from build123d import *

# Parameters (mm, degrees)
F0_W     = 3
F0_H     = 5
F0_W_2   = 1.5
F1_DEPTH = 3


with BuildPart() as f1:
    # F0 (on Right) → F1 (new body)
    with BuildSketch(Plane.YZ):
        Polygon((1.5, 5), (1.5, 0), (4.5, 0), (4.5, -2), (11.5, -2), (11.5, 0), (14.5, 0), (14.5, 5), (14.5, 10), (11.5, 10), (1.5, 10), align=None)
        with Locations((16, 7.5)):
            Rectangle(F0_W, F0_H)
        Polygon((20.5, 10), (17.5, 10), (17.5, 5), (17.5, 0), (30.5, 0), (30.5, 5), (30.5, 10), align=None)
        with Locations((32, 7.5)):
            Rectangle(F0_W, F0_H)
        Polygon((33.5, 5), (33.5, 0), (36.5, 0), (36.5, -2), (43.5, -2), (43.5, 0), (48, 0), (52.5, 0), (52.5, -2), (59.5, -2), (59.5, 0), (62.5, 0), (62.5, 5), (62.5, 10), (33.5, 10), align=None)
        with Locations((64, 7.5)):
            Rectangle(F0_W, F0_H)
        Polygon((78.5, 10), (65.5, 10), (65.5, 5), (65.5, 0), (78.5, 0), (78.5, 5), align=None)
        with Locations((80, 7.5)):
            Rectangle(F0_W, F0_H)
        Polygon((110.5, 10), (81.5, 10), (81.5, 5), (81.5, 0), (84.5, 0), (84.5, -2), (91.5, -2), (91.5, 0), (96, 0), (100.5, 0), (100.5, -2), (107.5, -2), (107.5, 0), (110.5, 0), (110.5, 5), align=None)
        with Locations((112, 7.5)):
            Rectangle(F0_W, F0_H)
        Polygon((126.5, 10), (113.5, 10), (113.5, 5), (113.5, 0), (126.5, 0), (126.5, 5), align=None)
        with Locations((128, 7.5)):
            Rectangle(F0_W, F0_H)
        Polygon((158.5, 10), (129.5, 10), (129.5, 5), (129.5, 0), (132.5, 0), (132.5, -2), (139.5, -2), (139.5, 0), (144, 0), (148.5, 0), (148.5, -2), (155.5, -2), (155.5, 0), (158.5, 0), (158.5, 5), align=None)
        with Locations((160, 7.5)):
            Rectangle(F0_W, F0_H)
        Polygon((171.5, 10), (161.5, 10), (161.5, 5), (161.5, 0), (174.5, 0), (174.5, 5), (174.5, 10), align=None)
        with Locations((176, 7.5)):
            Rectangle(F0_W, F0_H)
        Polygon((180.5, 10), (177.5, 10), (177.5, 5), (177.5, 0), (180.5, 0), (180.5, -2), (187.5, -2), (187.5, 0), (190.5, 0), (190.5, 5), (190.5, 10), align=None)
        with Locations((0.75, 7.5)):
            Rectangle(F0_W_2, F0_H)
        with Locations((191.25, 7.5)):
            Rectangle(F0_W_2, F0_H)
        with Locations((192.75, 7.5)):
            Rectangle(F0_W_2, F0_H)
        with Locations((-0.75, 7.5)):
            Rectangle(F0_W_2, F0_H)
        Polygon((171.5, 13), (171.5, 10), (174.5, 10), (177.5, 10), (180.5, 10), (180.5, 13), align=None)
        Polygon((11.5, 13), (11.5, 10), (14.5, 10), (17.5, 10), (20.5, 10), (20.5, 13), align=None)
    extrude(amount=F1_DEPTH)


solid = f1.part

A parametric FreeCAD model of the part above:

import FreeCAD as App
import Part
import Sketcher
from FreeCAD import Vector

doc = App.newDocument("Part")
body = doc.addObject("PartDesign::Body", "Body")

# Sketch on YZ plane
sketch1 = body.newObject("Sketcher::SketchObject", "Sketch")
sketch1.AttachmentSupport = (doc.getObject("YZ_Plane"), [""])
sketch1.MapMode = "FlatFace"
sketch1.addGeometry(Part.LineSegment(Vector(-1.5, 5, 0), Vector(1.5, 5, 0)), False)
sketch1.addGeometry(Part.LineSegment(Vector(1.5, 5, 0), Vector(1.5, 0, 0)), False)
sketch1.addGeometry(Part.LineSegment(Vector(1.5, 0, 0), Vector(4.5, 0, 0)), False)
sketch1.addGeometry(Part.LineSegment(Vector(4.5, 0, 0), Vector(4.5, -2, 0)), False)
sketch1.addGeometry(Part.LineSegment(Vector(4.5, -2, 0), Vector(11.5, -2, 0)), False)
sketch1.addGeometry(Part.LineSegment(Vector(11.5, -2, 0), Vector(11.5, 0, 0)), False)
sketch1.addGeometry(Part.LineSegment(Vector(11.5, 0, 0), Vector(14.5, 0, 0)), False)
sketch1.addGeometry(Part.LineSegment(Vector(14.5, 0, 0), Vector(14.5, 5, 0)), False)
sketch1.addGeometry(Part.LineSegment(Vector(14.5, 5, 0), Vector(17.5, 5, 0)), False)
sketch1.addGeometry(Part.LineSegment(Vector(17.5, 5, 0), Vector(17.5, 0, 0)), False)
sketch1.addGeometry(Part.LineSegment(Vector(17.5, 0, 0), Vector(30.5, 0, 0)), False)
sketch1.addGeometry(Part.LineSegment(Vector(30.5, 0, 0), Vector(30.5, 5, 0)), False)
sketch1.addGeometry(Part.LineSegment(Vector(30.5, 5, 0), Vector(33.5, 5, 0)), False)
sketch1.addGeometry(Part.LineSegment(Vector(33.5, 5, 0), Vector(33.5, 0, 0)), False)
sketch1.addGeometry(Part.LineSegment(Vector(33.5, 0, 0), Vector(36.5, 0, 0)), False)
sketch1.addGeometry(Part.LineSegment(Vector(36.5, 0, 0), Vector(36.5, -2, 0)), False)
sketch1.addGeometry(Part.LineSegment(Vector(36.5, -2, 0), Vector(43.5, -2, 0)), False)
sketch1.addGeometry(Part.LineSegment(Vector(43.5, -2, 0), Vector(43.5, 0, 0)), False)
sketch1.addGeometry(Part.LineSegment(Vector(43.5, 0, 0), Vector(52.5, 0, 0)), False)
sketch1.addGeometry(Part.LineSegment(Vector(52.5, 0, 0), Vector(52.5, -2, 0)), False)
sketch1.addGeometry(Part.LineSegment(Vector(52.5, -2, 0), Vector(59.5, -2, 0)), False)
sketch1.addGeometry(Part.LineSegment(Vector(59.5, -2, 0), Vector(59.5, 0, 0)), False)
sketch1.addGeometry(Part.LineSegment(Vector(59.5, 0, 0), Vector(62.5, 0, 0)), False)
sketch1.addGeometry(Part.LineSegment(Vector(62.5, 0, 0), Vector(62.5, 5, 0)), False)
sketch1.addGeometry(Part.LineSegment(Vector(62.5, 5, 0), Vector(65.5, 5, 0)), False)
sketch1.addGeometry(Part.LineSegment(Vector(65.5, 5, 0), Vector(65.5, 0, 0)), False)
sketch1.addGeometry(Part.LineSegment(Vector(65.5, 0, 0), Vector(78.5, 0, 0)), False)
sketch1.addGeometry(Part.LineSegment(Vector(78.5, 0, 0), Vector(78.5, 5, 0)), False)
sketch1.addGeometry(Part.LineSegment(Vector(78.5, 5, 0), Vector(81.5, 5, 0)), False)
sketch1.addGeometry(Part.LineSegment(Vector(81.5, 5, 0), Vector(81.5, 0, 0)), False)
sketch1.addGeometry(Part.LineSegment(Vector(81.5, 0, 0), Vector(84.5, 0, 0)), False)
sketch1.addGeometry(Part.LineSegment(Vector(84.5, 0, 0), Vector(84.5, -2, 0)), False)
sketch1.addGeometry(Part.LineSegment(Vector(84.5, -2, 0), Vector(91.5, -2, 0)), False)
sketch1.addGeometry(Part.LineSegment(Vector(91.5, -2, 0), Vector(91.5, 0, 0)), False)
sketch1.addGeometry(Part.LineSegment(Vector(91.5, 0, 0), Vector(100.5, 0, 0)), False)
sketch1.addGeometry(Part.LineSegment(Vector(100.5, 0, 0), Vector(100.5, -2, 0)), False)
sketch1.addGeometry(Part.LineSegment(Vector(100.5, -2, 0), Vector(107.5, -2, 0)), False)
sketch1.addGeometry(Part.LineSegment(Vector(107.5, -2, 0), Vector(107.5, 0, 0)), False)
sketch1.addGeometry(Part.LineSegment(Vector(107.5, 0, 0), Vector(110.5, 0, 0)), False)
sketch1.addGeometry(Part.LineSegment(Vector(110.5, 0, 0), Vector(110.5, 5, 0)), False)
sketch1.addGeometry(Part.LineSegment(Vector(110.5, 5, 0), Vector(113.5, 5, 0)), False)
sketch1.addGeometry(Part.LineSegment(Vector(113.5, 5, 0), Vector(113.5, 0, 0)), False)
sketch1.addGeometry(Part.LineSegment(Vector(113.5, 0, 0), Vector(126.5, 0, 0)), False)
sketch1.addGeometry(Part.LineSegment(Vector(126.5, 0, 0), Vector(126.5, 5, 0)), False)
sketch1.addGeometry(Part.LineSegment(Vector(126.5, 5, 0), Vector(129.5, 5, 0)), False)
sketch1.addGeometry(Part.LineSegment(Vector(129.5, 5, 0), Vector(129.5, 0, 0)), False)
sketch1.addGeometry(Part.LineSegment(Vector(129.5, 0, 0), Vector(132.5, 0, 0)), False)
sketch1.addGeometry(Part.LineSegment(Vector(132.5, 0, 0), Vector(132.5, -2, 0)), False)
sketch1.addGeometry(Part.LineSegment(Vector(132.5, -2, 0), Vector(139.5, -2, 0)), False)
sketch1.addGeometry(Part.LineSegment(Vector(139.5, -2, 0), Vector(139.5, 0, 0)), False)
sketch1.addGeometry(Part.LineSegment(Vector(139.5, 0, 0), Vector(148.5, 0, 0)), False)
sketch1.addGeometry(Part.LineSegment(Vector(148.5, 0, 0), Vector(148.5, -2, 0)), False)
sketch1.addGeometry(Part.LineSegment(Vector(148.5, -2, 0), Vector(155.5, -2, 0)), False)
sketch1.addGeometry(Part.LineSegment(Vector(155.5, -2, 0), Vector(155.5, 0, 0)), False)
sketch1.addGeometry(Part.LineSegment(Vector(155.5, 0, 0), Vector(158.5, 0, 0)), False)
sketch1.addGeometry(Part.LineSegment(Vector(158.5, 0, 0), Vector(158.5, 5, 0)), False)
sketch1.addGeometry(Part.LineSegment(Vector(158.5, 5, 0), Vector(161.5, 5, 0)), False)
sketch1.addGeometry(Part.LineSegment(Vector(161.5, 5, 0), Vector(161.5, 0, 0)), False)
sketch1.addGeometry(Part.LineSegment(Vector(161.5, 0, 0), Vector(174.5, 0, 0)), False)
sketch1.addGeometry(Part.LineSegment(Vector(174.5, 0, 0), Vector(174.5, 5, 0)), False)
sketch1.addGeometry(Part.LineSegment(Vector(174.5, 5, 0), Vector(177.5, 5, 0)), False)
sketch1.addGeometry(Part.LineSegment(Vector(177.5, 5, 0), Vector(177.5, 0, 0)), False)
sketch1.addGeometry(Part.LineSegment(Vector(177.5, 0, 0), Vector(180.5, 0, 0)), False)
sketch1.addGeometry(Part.LineSegment(Vector(180.5, 0, 0), Vector(180.5, -2, 0)), False)
sketch1.addGeometry(Part.LineSegment(Vector(180.5, -2, 0), Vector(187.5, -2, 0)), False)
sketch1.addGeometry(Part.LineSegment(Vector(187.5, -2, 0), Vector(187.5, 0, 0)), False)
sketch1.addGeometry(Part.LineSegment(Vector(187.5, 0, 0), Vector(190.5, 0, 0)), False)
sketch1.addGeometry(Part.LineSegment(Vector(190.5, 0, 0), Vector(190.5, 5, 0)), False)
sketch1.addGeometry(Part.LineSegment(Vector(190.5, 5, 0), Vector(193.5, 5, 0)), False)
sketch1.addGeometry(Part.LineSegment(Vector(193.5, 5, 0), Vector(193.5, 10, 0)), False)
sketch1.addGeometry(Part.LineSegment(Vector(193.5, 10, 0), Vector(180.5, 10, 0)), False)
sketch1.addGeometry(Part.LineSegment(Vector(180.5, 10, 0), Vector(180.5, 13, 0)), False)
sketch1.addGeometry(Part.LineSegment(Vector(180.5, 13, 0), Vector(171.5, 13, 0)), False)
sketch1.addGeometry(Part.LineSegment(Vector(171.5, 13, 0), Vector(171.5, 10, 0)), False)
sketch1.addGeometry(Part.LineSegment(Vector(171.5, 10, 0), Vector(20.5, 10, 0)), False)
sketch1.addGeometry(Part.LineSegment(Vector(20.5, 10, 0), Vector(20.5, 13, 0)), False)
sketch1.addGeometry(Part.LineSegment(Vector(20.5, 13, 0), Vector(11.5, 13, 0)), False)
sketch1.addGeometry(Part.LineSegment(Vector(11.5, 13, 0), Vector(11.5, 10, 0)), False)
sketch1.addGeometry(Part.LineSegment(Vector(11.5, 10, 0), Vector(-1.5, 10, 0)), False)
sketch1.addGeometry(Part.LineSegment(Vector(-1.5, 10, 0), Vector(-1.5, 5, 0)), False)
sketch1.addConstraint(Sketcher.Constraint("Coincident", 0, 2, 1, 1))
sketch1.addConstraint(Sketcher.Constraint("Coincident", 1, 2, 2, 1))
sketch1.addConstraint(Sketcher.Constraint("Coincident", 2, 2, 3, 1))
sketch1.addConstraint(Sketcher.Constraint("Coincident", 3, 2, 4, 1))
sketch1.addConstraint(Sketcher.Constraint("Coincident", 4, 2, 5, 1))
sketch1.addConstraint(Sketcher.Constraint("Coincident", 5, 2, 6, 1))
sketch1.addConstraint(Sketcher.Constraint("Coincident", 6, 2, 7, 1))
sketch1.addConstraint(Sketcher.Constraint("Coincident", 7, 2, 8, 1))
sketch1.addConstraint(Sketcher.Constraint("Coincident", 8, 2, 9, 1))
sketch1.addConstraint(Sketcher.Constraint("Coincident", 9, 2, 10, 1))
sketch1.addConstraint(Sketcher.Constraint("Coincident", 10, 2, 11, 1))
sketch1.addConstraint(Sketcher.Constraint("Coincident", 11, 2, 12, 1))
sketch1.addConstraint(Sketcher.Constraint("Coincident", 12, 2, 13, 1))
sketch1.addConstraint(Sketcher.Constraint("Coincident", 13, 2, 14, 1))
sketch1.addConstraint(Sketcher.Constraint("Coincident", 14, 2, 15, 1))
sketch1.addConstraint(Sketcher.Constraint("Coincident", 15, 2, 16, 1))
sketch1.addConstraint(Sketcher.Constraint("Coincident", 16, 2, 17, 1))
sketch1.addConstraint(Sketcher.Constraint("Coincident", 17, 2, 18, 1))
sketch1.addConstraint(Sketcher.Constraint("Coincident", 18, 2, 19, 1))
sketch1.addConstraint(Sketcher.Constraint("Coincident", 19, 2, 20, 1))
sketch1.addConstraint(Sketcher.Constraint("Coincident", 20, 2, 21, 1))
sketch1.addConstraint(Sketcher.Constraint("Coincident", 21, 2, 22, 1))
sketch1.addConstraint(Sketcher.Constraint("Coincident", 22, 2, 23, 1))
sketch1.addConstraint(Sketcher.Constraint("Coincident", 23, 2, 24, 1))
sketch1.addConstraint(Sketcher.Constraint("Coincident", 24, 2, 25, 1))
sketch1.addConstraint(Sketcher.Constraint("Coincident", 25, 2, 26, 1))
sketch1.addConstraint(Sketcher.Constraint("Coincident", 26, 2, 27, 1))
sketch1.addConstraint(Sketcher.Constraint("Coincident", 27, 2, 28, 1))
sketch1.addConstraint(Sketcher.Constraint("Coincident", 28, 2, 29, 1))
sketch1.addConstraint(Sketcher.Constraint("Coincident", 29, 2, 30, 1))
sketch1.addConstraint(Sketcher.Constraint("Coincident", 30, 2, 31, 1))
sketch1.addConstraint(Sketcher.Constraint("Coincident", 31, 2, 32, 1))
sketch1.addConstraint(Sketcher.Constraint("Coincident", 32, 2, 33, 1))
sketch1.addConstraint(Sketcher.Constraint("Coincident", 33, 2, 34, 1))
sketch1.addConstraint(Sketcher.Constraint("Coincident", 34, 2, 35, 1))
sketch1.addConstraint(Sketcher.Constraint("Coincident", 35, 2, 36, 1))
sketch1.addConstraint(Sketcher.Constraint("Coincident", 36, 2, 37, 1))
sketch1.addConstraint(Sketcher.Constraint("Coincident", 37, 2, 38, 1))
sketch1.addConstraint(Sketcher.Constraint("Coincident", 38, 2, 39, 1))
sketch1.addConstraint(Sketcher.Constraint("Coincident", 39, 2, 40, 1))
sketch1.addConstraint(Sketcher.Constraint("Coincident", 40, 2, 41, 1))
sketch1.addConstraint(Sketcher.Constraint("Coincident", 41, 2, 42, 1))
sketch1.addConstraint(Sketcher.Constraint("Coincident", 42, 2, 43, 1))
sketch1.addConstraint(Sketcher.Constraint("Coincident", 43, 2, 44, 1))
sketch1.addConstraint(Sketcher.Constraint("Coincident", 44, 2, 45, 1))
sketch1.addConstraint(Sketcher.Constraint("Coincident", 45, 2, 46, 1))
sketch1.addConstraint(Sketcher.Constraint("Coincident", 46, 2, 47, 1))
sketch1.addConstraint(Sketcher.Constraint("Coincident", 47, 2, 48, 1))
sketch1.addConstraint(Sketcher.Constraint("Coincident", 48, 2, 49, 1))
sketch1.addConstraint(Sketcher.Constraint("Coincident", 49, 2, 50, 1))
sketch1.addConstraint(Sketcher.Constraint("Coincident", 50, 2, 51, 1))
sketch1.addConstraint(Sketcher.Constraint("Coincident", 51, 2, 52, 1))
sketch1.addConstraint(Sketcher.Constraint("Coincident", 52, 2, 53, 1))
sketch1.addConstraint(Sketcher.Constraint("Coincident", 53, 2, 54, 1))
sketch1.addConstraint(Sketcher.Constraint("Coincident", 54, 2, 55, 1))
sketch1.addConstraint(Sketcher.Constraint("Coincident", 55, 2, 56, 1))
sketch1.addConstraint(Sketcher.Constraint("Coincident", 56, 2, 57, 1))
sketch1.addConstraint(Sketcher.Constraint("Coincident", 57, 2, 58, 1))
sketch1.addConstraint(Sketcher.Constraint("Coincident", 58, 2, 59, 1))
sketch1.addConstraint(Sketcher.Constraint("Coincident", 59, 2, 60, 1))
sketch1.addConstraint(Sketcher.Constraint("Coincident", 60, 2, 61, 1))
sketch1.addConstraint(Sketcher.Constraint("Coincident", 61, 2, 62, 1))
sketch1.addConstraint(Sketcher.Constraint("Coincident", 62, 2, 63, 1))
sketch1.addConstraint(Sketcher.Constraint("Coincident", 63, 2, 64, 1))
sketch1.addConstraint(Sketcher.Constraint("Coincident", 64, 2, 65, 1))
sketch1.addConstraint(Sketcher.Constraint("Coincident", 65, 2, 66, 1))
sketch1.addConstraint(Sketcher.Constraint("Coincident", 66, 2, 67, 1))
sketch1.addConstraint(Sketcher.Constraint("Coincident", 67, 2, 68, 1))
sketch1.addConstraint(Sketcher.Constraint("Coincident", 68, 2, 69, 1))
sketch1.addConstraint(Sketcher.Constraint("Coincident", 69, 2, 70, 1))
sketch1.addConstraint(Sketcher.Constraint("Coincident", 70, 2, 71, 1))
sketch1.addConstraint(Sketcher.Constraint("Coincident", 71, 2, 72, 1))
sketch1.addConstraint(Sketcher.Constraint("Coincident", 72, 2, 73, 1))
sketch1.addConstraint(Sketcher.Constraint("Coincident", 73, 2, 74, 1))
sketch1.addConstraint(Sketcher.Constraint("Coincident", 74, 2, 75, 1))
sketch1.addConstraint(Sketcher.Constraint("Coincident", 75, 2, 76, 1))
sketch1.addConstraint(Sketcher.Constraint("Coincident", 76, 2, 77, 1))
sketch1.addConstraint(Sketcher.Constraint("Coincident", 77, 2, 78, 1))
sketch1.addConstraint(Sketcher.Constraint("Coincident", 78, 2, 79, 1))
sketch1.addConstraint(Sketcher.Constraint("Coincident", 79, 2, 0, 1))
sketch1.addConstraint(Sketcher.Constraint("Horizontal", 0))
sketch1.addConstraint(Sketcher.Constraint("Vertical", 1))
sketch1.addConstraint(Sketcher.Constraint("Horizontal", 2))
sketch1.addConstraint(Sketcher.Constraint("Vertical", 3))
sketch1.addConstraint(Sketcher.Constraint("Horizontal", 4))
sketch1.addConstraint(Sketcher.Constraint("Vertical", 5))
sketch1.addConstraint(Sketcher.Constraint("Horizontal", 6))
sketch1.addConstraint(Sketcher.Constraint("Vertical", 7))
sketch1.addConstraint(Sketcher.Constraint("Horizontal", 8))
sketch1.addConstraint(Sketcher.Constraint("Vertical", 9))
sketch1.addConstraint(Sketcher.Constraint("Horizontal", 10))
sketch1.addConstraint(Sketcher.Constraint("Vertical", 11))
sketch1.addConstraint(Sketcher.Constraint("Horizontal", 12))
sketch1.addConstraint(Sketcher.Constraint("Vertical", 13))
sketch1.addConstraint(Sketcher.Constraint("Horizontal", 14))
sketch1.addConstraint(Sketcher.Constraint("Vertical", 15))
sketch1.addConstraint(Sketcher.Constraint("Horizontal", 16))
sketch1.addConstraint(Sketcher.Constraint("Vertical", 17))
sketch1.addConstraint(Sketcher.Constraint("Horizontal", 18))
sketch1.addConstraint(Sketcher.Constraint("Vertical", 19))
sketch1.addConstraint(Sketcher.Constraint("Horizontal", 20))
sketch1.addConstraint(Sketcher.Constraint("Vertical", 21))
sketch1.addConstraint(Sketcher.Constraint("Horizontal", 22))
sketch1.addConstraint(Sketcher.Constraint("Vertical", 23))
sketch1.addConstraint(Sketcher.Constraint("Horizontal", 24))
sketch1.addConstraint(Sketcher.Constraint("Vertical", 25))
sketch1.addConstraint(Sketcher.Constraint("Horizontal", 26))
sketch1.addConstraint(Sketcher.Constraint("Vertical", 27))
sketch1.addConstraint(Sketcher.Constraint("Horizontal", 28))
sketch1.addConstraint(Sketcher.Constraint("Vertical", 29))
sketch1.addConstraint(Sketcher.Constraint("Horizontal", 30))
sketch1.addConstraint(Sketcher.Constraint("Vertical", 31))
sketch1.addConstraint(Sketcher.Constraint("Horizontal", 32))
sketch1.addConstraint(Sketcher.Constraint("Vertical", 33))
sketch1.addConstraint(Sketcher.Constraint("Horizontal", 34))
sketch1.addConstraint(Sketcher.Constraint("Vertical", 35))
sketch1.addConstraint(Sketcher.Constraint("Horizontal", 36))
sketch1.addConstraint(Sketcher.Constraint("Vertical", 37))
sketch1.addConstraint(Sketcher.Constraint("Horizontal", 38))
sketch1.addConstraint(Sketcher.Constraint("Vertical", 39))
sketch1.addConstraint(Sketcher.Constraint("Horizontal", 40))
sketch1.addConstraint(Sketcher.Constraint("Vertical", 41))
sketch1.addConstraint(Sketcher.Constraint("Horizontal", 42))
sketch1.addConstraint(Sketcher.Constraint("Vertical", 43))
sketch1.addConstraint(Sketcher.Constraint("Horizontal", 44))
sketch1.addConstraint(Sketcher.Constraint("Vertical", 45))
sketch1.addConstraint(Sketcher.Constraint("Horizontal", 46))
sketch1.addConstraint(Sketcher.Constraint("Vertical", 47))
sketch1.addConstraint(Sketcher.Constraint("Horizontal", 48))
sketch1.addConstraint(Sketcher.Constraint("Vertical", 49))
sketch1.addConstraint(Sketcher.Constraint("Horizontal", 50))
sketch1.addConstraint(Sketcher.Constraint("Vertical", 51))
sketch1.addConstraint(Sketcher.Constraint("Horizontal", 52))
sketch1.addConstraint(Sketcher.Constraint("Vertical", 53))
sketch1.addConstraint(Sketcher.Constraint("Horizontal", 54))
sketch1.addConstraint(Sketcher.Constraint("Vertical", 55))
sketch1.addConstraint(Sketcher.Constraint("Horizontal", 56))
sketch1.addConstraint(Sketcher.Constraint("Vertical", 57))
sketch1.addConstraint(Sketcher.Constraint("Horizontal", 58))
sketch1.addConstraint(Sketcher.Constraint("Vertical", 59))
sketch1.addConstraint(Sketcher.Constraint("Horizontal", 60))
sketch1.addConstraint(Sketcher.Constraint("Vertical", 61))
sketch1.addConstraint(Sketcher.Constraint("Horizontal", 62))
sketch1.addConstraint(Sketcher.Constraint("Vertical", 63))
sketch1.addConstraint(Sketcher.Constraint("Horizontal", 64))
sketch1.addConstraint(Sketcher.Constraint("Vertical", 65))
sketch1.addConstraint(Sketcher.Constraint("Horizontal", 66))
sketch1.addConstraint(Sketcher.Constraint("Vertical", 67))
sketch1.addConstraint(Sketcher.Constraint("Horizontal", 68))
sketch1.addConstraint(Sketcher.Constraint("Vertical", 69))
sketch1.addConstraint(Sketcher.Constraint("Horizontal", 70))
sketch1.addConstraint(Sketcher.Constraint("Vertical", 71))
sketch1.addConstraint(Sketcher.Constraint("Horizontal", 72))
sketch1.addConstraint(Sketcher.Constraint("Vertical", 73))
sketch1.addConstraint(Sketcher.Constraint("Horizontal", 74))
sketch1.addConstraint(Sketcher.Constraint("Vertical", 75))
sketch1.addConstraint(Sketcher.Constraint("Horizontal", 76))
sketch1.addConstraint(Sketcher.Constraint("Vertical", 77))
sketch1.addConstraint(Sketcher.Constraint("Horizontal", 78))
sketch1.addConstraint(Sketcher.Constraint("Vertical", 79))
sketch1.addConstraint(Sketcher.Constraint("PointOnObject", 1, 2, -1))
sketch1.addConstraint(Sketcher.Constraint("PointOnObject", 5, 2, -1))
sketch1.addConstraint(Sketcher.Constraint("PointOnObject", 9, 2, -1))
sketch1.addConstraint(Sketcher.Constraint("PointOnObject", 13, 2, -1))
sketch1.addConstraint(Sketcher.Constraint("PointOnObject", 17, 2, -1))
sketch1.addConstraint(Sketcher.Constraint("PointOnObject", 21, 2, -1))
sketch1.addConstraint(Sketcher.Constraint("PointOnObject", 25, 2, -1))
sketch1.addConstraint(Sketcher.Constraint("PointOnObject", 29, 2, -1))
sketch1.addConstraint(Sketcher.Constraint("PointOnObject", 33, 2, -1))
sketch1.addConstraint(Sketcher.Constraint("PointOnObject", 37, 2, -1))
sketch1.addConstraint(Sketcher.Constraint("PointOnObject", 41, 2, -1))
sketch1.addConstraint(Sketcher.Constraint("PointOnObject", 45, 2, -1))
sketch1.addConstraint(Sketcher.Constraint("PointOnObject", 49, 2, -1))
sketch1.addConstraint(Sketcher.Constraint("PointOnObject", 53, 2, -1))
sketch1.addConstraint(Sketcher.Constraint("PointOnObject", 57, 2, -1))
sketch1.addConstraint(Sketcher.Constraint("PointOnObject", 61, 2, -1))
sketch1.addConstraint(Sketcher.Constraint("PointOnObject", 65, 2, -1))
sketch1.addConstraint(Sketcher.Constraint("Horizontal", 0, 2, 7, 2))
sketch1.addConstraint(Sketcher.Constraint("Horizontal", 8, 2, 11, 2))
sketch1.addConstraint(Sketcher.Constraint("Horizontal", 4, 2, 15, 2))
sketch1.addConstraint(Sketcher.Constraint("Horizontal", 16, 2, 19, 2))
sketch1.addConstraint(Sketcher.Constraint("Horizontal", 12, 2, 23, 2))
sketch1.addConstraint(Sketcher.Constraint("Horizontal", 24, 2, 27, 2))
sketch1.addConstraint(Sketcher.Constraint("Horizontal", 20, 2, 31, 2))
sketch1.addConstraint(Sketcher.Constraint("Horizontal", 32, 2, 35, 2))
sketch1.addConstraint(Sketcher.Constraint("Horizontal", 28, 2, 39, 2))
sketch1.addConstraint(Sketcher.Constraint("Horizontal", 40, 2, 43, 2))
sketch1.addConstraint(Sketcher.Constraint("Horizontal", 36, 2, 47, 2))
sketch1.addConstraint(Sketcher.Constraint("Horizontal", 48, 2, 51, 2))
sketch1.addConstraint(Sketcher.Constraint("Horizontal", 44, 2, 55, 2))
sketch1.addConstraint(Sketcher.Constraint("Horizontal", 56, 2, 59, 2))
sketch1.addConstraint(Sketcher.Constraint("Horizontal", 52, 2, 63, 2))
sketch1.addConstraint(Sketcher.Constraint("Horizontal", 60, 2, 67, 2))
sketch1.addConstraint(Sketcher.Constraint("Horizontal", 70, 2, 73, 2))
sketch1.addConstraint(Sketcher.Constraint("Horizontal", 72, 2, 75, 2))
sketch1.addConstraint(Sketcher.Constraint("Horizontal", 74, 2, 77, 2))
sketch1.addConstraint(Sketcher.Constraint("Vertical", 63, 2, 70, 2))
sketch1.addConstraint(Sketcher.Constraint("Vertical", 5, 2, 76, 2))
sketch1.addConstraint(Sketcher.Constraint("Equal", 0, 2))
sketch1.addConstraint(Sketcher.Constraint("Equal", 2, 6))
sketch1.addConstraint(Sketcher.Constraint("Equal", 6, 8))
sketch1.addConstraint(Sketcher.Constraint("Equal", 8, 12))
sketch1.addConstraint(Sketcher.Constraint("Equal", 12, 14))
sketch1.addConstraint(Sketcher.Constraint("Equal", 4, 16))
sketch1.addConstraint(Sketcher.Constraint("Equal", 16, 20))
sketch1.addConstraint(Sketcher.Constraint("Equal", 14, 22))
sketch1.addConstraint(Sketcher.Constraint("Equal", 22, 24))
sketch1.addConstraint(Sketcher.Constraint("Equal", 10, 26))
sketch1.addConstraint(Sketcher.Constraint("Equal", 24, 28))
sketch1.addConstraint(Sketcher.Constraint("Equal", 28, 30))
sketch1.addConstraint(Sketcher.Constraint("Equal", 20, 32))
sketch1.addConstraint(Sketcher.Constraint("Equal", 18, 34))
sketch1.addConstraint(Sketcher.Constraint("Equal", 32, 36))
sketch1.addConstraint(Sketcher.Constraint("Equal", 30, 38))
sketch1.addConstraint(Sketcher.Constraint("Equal", 38, 40))
sketch1.addConstraint(Sketcher.Constraint("Equal", 26, 42))
sketch1.addConstraint(Sketcher.Constraint("Equal", 40, 44))
sketch1.addConstraint(Sketcher.Constraint("Equal", 44, 46))
sketch1.addConstraint(Sketcher.Constraint("Equal", 36, 48))
sketch1.addConstraint(Sketcher.Constraint("Equal", 34, 50))
sketch1.addConstraint(Sketcher.Constraint("Equal", 48, 52))
sketch1.addConstraint(Sketcher.Constraint("Equal", 46, 54))
sketch1.addConstraint(Sketcher.Constraint("Equal", 54, 56))
sketch1.addConstraint(Sketcher.Constraint("Equal", 42, 58))
sketch1.addConstraint(Sketcher.Constraint("Equal", 56, 60))
sketch1.addConstraint(Sketcher.Constraint("Equal", 60, 62))
sketch1.addConstraint(Sketcher.Constraint("Equal", 52, 64))
sketch1.addConstraint(Sketcher.Constraint("Equal", 62, 66))
sketch1.addConstraint(Sketcher.Constraint("Equal", 66, 68))
sketch1.addConstraint(Sketcher.Constraint("Equal", 58, 70))
sketch1.addConstraint(Sketcher.Constraint("Equal", 50, 72))
sketch1.addConstraint(Sketcher.Constraint("Equal", 72, 76))
sketch1.addConstraint(Sketcher.Constraint("Equal", 67, 69))
sketch1.addConstraint(Sketcher.Constraint("Equal", 68, 71))
sketch1.addConstraint(Sketcher.Constraint("DistanceX", 0, 1, 0, 2, 3.0))
sketch1.addConstraint(Sketcher.Constraint("DistanceX", 4, 1, 4, 2, 7.0))
sketch1.addConstraint(Sketcher.Constraint("DistanceX", 18, 1, 18, 2, 9.0))
sketch1.addConstraint(Sketcher.Constraint("DistanceY", 1, 2, 1, 1, 5.0))
sketch1.addConstraint(Sketcher.Constraint("DistanceY", 3, 2, 3, 1, 2.0))
sketch1.addConstraint(Sketcher.Constraint("DistanceX", -1, 1, 0, 2, 1.5))
pad1 = body.newObject("PartDesign::Pad", "Pad")
pad1.Profile = sketch1
pad1.Length = 3

doc.recompute()
